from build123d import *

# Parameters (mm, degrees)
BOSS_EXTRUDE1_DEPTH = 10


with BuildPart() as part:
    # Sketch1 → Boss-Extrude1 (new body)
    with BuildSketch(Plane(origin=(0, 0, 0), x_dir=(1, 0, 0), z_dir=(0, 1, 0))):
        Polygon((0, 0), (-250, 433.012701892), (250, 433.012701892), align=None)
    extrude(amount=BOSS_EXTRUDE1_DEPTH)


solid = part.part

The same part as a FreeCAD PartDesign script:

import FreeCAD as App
import Part
import Sketcher
Q = App.Units.Quantity


def add_polygon(sketch, points):
    """Adds a closed chain of lines whose ends are joined by coincident constraints."""
    first, n = sketch.GeometryCount, len(points)
    for a, b in zip(points, points[1:] + points[:1]):
        sketch.addGeometry(Part.LineSegment(App.Vector(*a, 0), App.Vector(*b, 0)), False)
    for i in range(n):
        sketch.addConstraint(Sketcher.Constraint("Coincident", first + i, 2, first + (i + 1) % n, 1))

doc = App.newDocument("Part")
params = doc.addObject("Spreadsheet::Sheet", "Params")
for row, (alias, value) in enumerate([
    ("sketch1_width", "500 mm"),
    ("pad1_length", "10 mm"),
], start=1):
    params.set(f"A{row}", alias)
    params.set(f"B{row}", "=" + value)
    params.setAlias(f"B{row}", alias)

body = doc.addObject("PartDesign::Body", "Body")

# Sketch on XZ plane
sketch1 = body.newObject("Sketcher::SketchObject", "Sketch")
sketch1.AttachmentSupport = (doc.getObject("XZ_Plane"), [""])
sketch1.MapMode = "FlatFace"
add_polygon(sketch1, [(-250, -433), (0, 0), (250, -433)])  # lines 0-2
sketch1.addConstraint([
    Sketcher.Constraint("Horizontal", 2),
    Sketcher.Constraint("Coincident", 0, 2, -1, 1),
    Sketcher.Constraint("Equal", 0, 1),
    Sketcher.Constraint("DistanceX", 2, 2, 2, 1, Q("500 mm")),
    Sketcher.Constraint("Angle", 0, Q("60 deg")),
])
sketch1.setExpression("Constraints[6]", "Params.sketch1_width")
pad1 = body.newObject("PartDesign::Pad", "Pad")
pad1.Profile = sketch1
pad1.setExpression("Length", "Params.pad1_length")
pad1.Reversed = True

doc.recompute()
